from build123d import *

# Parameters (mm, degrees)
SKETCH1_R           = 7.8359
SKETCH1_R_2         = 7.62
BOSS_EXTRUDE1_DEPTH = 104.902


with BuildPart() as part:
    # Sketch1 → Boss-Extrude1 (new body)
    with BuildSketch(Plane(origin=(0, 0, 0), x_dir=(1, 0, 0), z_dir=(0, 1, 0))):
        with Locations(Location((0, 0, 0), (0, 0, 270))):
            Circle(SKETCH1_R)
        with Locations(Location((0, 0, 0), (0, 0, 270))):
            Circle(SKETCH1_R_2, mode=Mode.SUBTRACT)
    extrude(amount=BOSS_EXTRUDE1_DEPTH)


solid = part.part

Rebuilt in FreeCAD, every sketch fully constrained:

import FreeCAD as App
import Part
import Sketcher
from FreeCAD import Vector
Q = App.Units.Quantity

doc = App.newDocument("Part")
body = doc.addObject("PartDesign::Body", "Body")

# Sketch on XZ plane
sketch1 = body.newObject("Sketcher::SketchObject", "Sketch")
sketch1.AttachmentSupport = (doc.getObject("XZ_Plane"), [""])
sketch1.MapMode = "FlatFace"
sketch1.addGeometry([
    Part.Circle(Vector(0, 0, 0), Vector(0, 0, 1), 7.8359),
    Part.Circle(Vector(0, 0, 0), Vector(0, 0, 1), 7.62),
], False)
sketch1.addConstraint([
    Sketcher.Constraint("Coincident", 0, 3, -1, 1),
    Sketcher.Constraint("Coincident", 1, 3, -1, 1),
    Sketcher.Constraint("Diameter", 1, Q("0.6 in")),
    Sketcher.Constraint("Diameter", 0, Q("0.617 in")),
])
pad1 = body.newObject("PartDesign::Pad", "Pad")
pad1.Profile = sketch1
pad1.Length = Q("4.13 in")
pad1.Reversed = True

doc.recompute()
